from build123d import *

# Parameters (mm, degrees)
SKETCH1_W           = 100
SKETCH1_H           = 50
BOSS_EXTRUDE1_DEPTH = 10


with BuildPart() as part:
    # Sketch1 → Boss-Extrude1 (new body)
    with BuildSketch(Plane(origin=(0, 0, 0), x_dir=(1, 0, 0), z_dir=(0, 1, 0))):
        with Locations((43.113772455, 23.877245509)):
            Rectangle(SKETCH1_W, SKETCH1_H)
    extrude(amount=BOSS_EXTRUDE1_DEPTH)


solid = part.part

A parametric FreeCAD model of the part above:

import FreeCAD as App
import Part
import Sketcher


def add_polygon(sketch, points):
    """Adds a closed chain of lines whose ends are joined by coincident constraints."""
    first, n = sketch.GeometryCount, len(points)
    for a, b in zip(points, points[1:] + points[:1]):
        sketch.addGeometry(Part.LineSegment(App.Vector(*a, 0), App.Vector(*b, 0)), False)
    for i in range(n):
        sketch.addConstraint(Sketcher.Constraint("Coincident", first + i, 2, first + (i + 1) % n, 1))

doc = App.newDocument("Part")
body = doc.addObject("PartDesign::Body", "Body")

# Sketch on XZ plane
sketch1 = doc.addObject("Sketcher::SketchObject", "Sketch")
body.addObject(sketch1)
sketch1.AttachmentSupport = (doc.XZ_Plane, [""])
sketch1.MapMode = "FlatFace"
add_polygon(sketch1, [(-7, -49), (-7, 1), (93, 1), (93, -49)])  # lines 0-3
sketch1.addConstraint([
    Sketcher.Constraint("Vertical", 0),
    Sketcher.Constraint("Horizontal", 1),
    Sketcher.Constraint("Vertical", 2),
    Sketcher.Constraint("Horizontal", 3),
    Sketcher.Constraint("DistanceX", 1, 1, 1, 2, 100.0),
    Sketcher.Constraint("DistanceY", 0, 1, 0, 2, 50.0),
    Sketcher.Constraint("DistanceX", 0, 2, -1, 1, 6.886228),
    Sketcher.Constraint("DistanceY", -1, 1, 0, 2, 1.122754),
])
pad1 = doc.addObject("PartDesign::Pad", "Pad")
body.addObject(pad1)
pad1.Profile = sketch1
pad1.Length = 10
pad1.Reversed = True

doc.recompute()
